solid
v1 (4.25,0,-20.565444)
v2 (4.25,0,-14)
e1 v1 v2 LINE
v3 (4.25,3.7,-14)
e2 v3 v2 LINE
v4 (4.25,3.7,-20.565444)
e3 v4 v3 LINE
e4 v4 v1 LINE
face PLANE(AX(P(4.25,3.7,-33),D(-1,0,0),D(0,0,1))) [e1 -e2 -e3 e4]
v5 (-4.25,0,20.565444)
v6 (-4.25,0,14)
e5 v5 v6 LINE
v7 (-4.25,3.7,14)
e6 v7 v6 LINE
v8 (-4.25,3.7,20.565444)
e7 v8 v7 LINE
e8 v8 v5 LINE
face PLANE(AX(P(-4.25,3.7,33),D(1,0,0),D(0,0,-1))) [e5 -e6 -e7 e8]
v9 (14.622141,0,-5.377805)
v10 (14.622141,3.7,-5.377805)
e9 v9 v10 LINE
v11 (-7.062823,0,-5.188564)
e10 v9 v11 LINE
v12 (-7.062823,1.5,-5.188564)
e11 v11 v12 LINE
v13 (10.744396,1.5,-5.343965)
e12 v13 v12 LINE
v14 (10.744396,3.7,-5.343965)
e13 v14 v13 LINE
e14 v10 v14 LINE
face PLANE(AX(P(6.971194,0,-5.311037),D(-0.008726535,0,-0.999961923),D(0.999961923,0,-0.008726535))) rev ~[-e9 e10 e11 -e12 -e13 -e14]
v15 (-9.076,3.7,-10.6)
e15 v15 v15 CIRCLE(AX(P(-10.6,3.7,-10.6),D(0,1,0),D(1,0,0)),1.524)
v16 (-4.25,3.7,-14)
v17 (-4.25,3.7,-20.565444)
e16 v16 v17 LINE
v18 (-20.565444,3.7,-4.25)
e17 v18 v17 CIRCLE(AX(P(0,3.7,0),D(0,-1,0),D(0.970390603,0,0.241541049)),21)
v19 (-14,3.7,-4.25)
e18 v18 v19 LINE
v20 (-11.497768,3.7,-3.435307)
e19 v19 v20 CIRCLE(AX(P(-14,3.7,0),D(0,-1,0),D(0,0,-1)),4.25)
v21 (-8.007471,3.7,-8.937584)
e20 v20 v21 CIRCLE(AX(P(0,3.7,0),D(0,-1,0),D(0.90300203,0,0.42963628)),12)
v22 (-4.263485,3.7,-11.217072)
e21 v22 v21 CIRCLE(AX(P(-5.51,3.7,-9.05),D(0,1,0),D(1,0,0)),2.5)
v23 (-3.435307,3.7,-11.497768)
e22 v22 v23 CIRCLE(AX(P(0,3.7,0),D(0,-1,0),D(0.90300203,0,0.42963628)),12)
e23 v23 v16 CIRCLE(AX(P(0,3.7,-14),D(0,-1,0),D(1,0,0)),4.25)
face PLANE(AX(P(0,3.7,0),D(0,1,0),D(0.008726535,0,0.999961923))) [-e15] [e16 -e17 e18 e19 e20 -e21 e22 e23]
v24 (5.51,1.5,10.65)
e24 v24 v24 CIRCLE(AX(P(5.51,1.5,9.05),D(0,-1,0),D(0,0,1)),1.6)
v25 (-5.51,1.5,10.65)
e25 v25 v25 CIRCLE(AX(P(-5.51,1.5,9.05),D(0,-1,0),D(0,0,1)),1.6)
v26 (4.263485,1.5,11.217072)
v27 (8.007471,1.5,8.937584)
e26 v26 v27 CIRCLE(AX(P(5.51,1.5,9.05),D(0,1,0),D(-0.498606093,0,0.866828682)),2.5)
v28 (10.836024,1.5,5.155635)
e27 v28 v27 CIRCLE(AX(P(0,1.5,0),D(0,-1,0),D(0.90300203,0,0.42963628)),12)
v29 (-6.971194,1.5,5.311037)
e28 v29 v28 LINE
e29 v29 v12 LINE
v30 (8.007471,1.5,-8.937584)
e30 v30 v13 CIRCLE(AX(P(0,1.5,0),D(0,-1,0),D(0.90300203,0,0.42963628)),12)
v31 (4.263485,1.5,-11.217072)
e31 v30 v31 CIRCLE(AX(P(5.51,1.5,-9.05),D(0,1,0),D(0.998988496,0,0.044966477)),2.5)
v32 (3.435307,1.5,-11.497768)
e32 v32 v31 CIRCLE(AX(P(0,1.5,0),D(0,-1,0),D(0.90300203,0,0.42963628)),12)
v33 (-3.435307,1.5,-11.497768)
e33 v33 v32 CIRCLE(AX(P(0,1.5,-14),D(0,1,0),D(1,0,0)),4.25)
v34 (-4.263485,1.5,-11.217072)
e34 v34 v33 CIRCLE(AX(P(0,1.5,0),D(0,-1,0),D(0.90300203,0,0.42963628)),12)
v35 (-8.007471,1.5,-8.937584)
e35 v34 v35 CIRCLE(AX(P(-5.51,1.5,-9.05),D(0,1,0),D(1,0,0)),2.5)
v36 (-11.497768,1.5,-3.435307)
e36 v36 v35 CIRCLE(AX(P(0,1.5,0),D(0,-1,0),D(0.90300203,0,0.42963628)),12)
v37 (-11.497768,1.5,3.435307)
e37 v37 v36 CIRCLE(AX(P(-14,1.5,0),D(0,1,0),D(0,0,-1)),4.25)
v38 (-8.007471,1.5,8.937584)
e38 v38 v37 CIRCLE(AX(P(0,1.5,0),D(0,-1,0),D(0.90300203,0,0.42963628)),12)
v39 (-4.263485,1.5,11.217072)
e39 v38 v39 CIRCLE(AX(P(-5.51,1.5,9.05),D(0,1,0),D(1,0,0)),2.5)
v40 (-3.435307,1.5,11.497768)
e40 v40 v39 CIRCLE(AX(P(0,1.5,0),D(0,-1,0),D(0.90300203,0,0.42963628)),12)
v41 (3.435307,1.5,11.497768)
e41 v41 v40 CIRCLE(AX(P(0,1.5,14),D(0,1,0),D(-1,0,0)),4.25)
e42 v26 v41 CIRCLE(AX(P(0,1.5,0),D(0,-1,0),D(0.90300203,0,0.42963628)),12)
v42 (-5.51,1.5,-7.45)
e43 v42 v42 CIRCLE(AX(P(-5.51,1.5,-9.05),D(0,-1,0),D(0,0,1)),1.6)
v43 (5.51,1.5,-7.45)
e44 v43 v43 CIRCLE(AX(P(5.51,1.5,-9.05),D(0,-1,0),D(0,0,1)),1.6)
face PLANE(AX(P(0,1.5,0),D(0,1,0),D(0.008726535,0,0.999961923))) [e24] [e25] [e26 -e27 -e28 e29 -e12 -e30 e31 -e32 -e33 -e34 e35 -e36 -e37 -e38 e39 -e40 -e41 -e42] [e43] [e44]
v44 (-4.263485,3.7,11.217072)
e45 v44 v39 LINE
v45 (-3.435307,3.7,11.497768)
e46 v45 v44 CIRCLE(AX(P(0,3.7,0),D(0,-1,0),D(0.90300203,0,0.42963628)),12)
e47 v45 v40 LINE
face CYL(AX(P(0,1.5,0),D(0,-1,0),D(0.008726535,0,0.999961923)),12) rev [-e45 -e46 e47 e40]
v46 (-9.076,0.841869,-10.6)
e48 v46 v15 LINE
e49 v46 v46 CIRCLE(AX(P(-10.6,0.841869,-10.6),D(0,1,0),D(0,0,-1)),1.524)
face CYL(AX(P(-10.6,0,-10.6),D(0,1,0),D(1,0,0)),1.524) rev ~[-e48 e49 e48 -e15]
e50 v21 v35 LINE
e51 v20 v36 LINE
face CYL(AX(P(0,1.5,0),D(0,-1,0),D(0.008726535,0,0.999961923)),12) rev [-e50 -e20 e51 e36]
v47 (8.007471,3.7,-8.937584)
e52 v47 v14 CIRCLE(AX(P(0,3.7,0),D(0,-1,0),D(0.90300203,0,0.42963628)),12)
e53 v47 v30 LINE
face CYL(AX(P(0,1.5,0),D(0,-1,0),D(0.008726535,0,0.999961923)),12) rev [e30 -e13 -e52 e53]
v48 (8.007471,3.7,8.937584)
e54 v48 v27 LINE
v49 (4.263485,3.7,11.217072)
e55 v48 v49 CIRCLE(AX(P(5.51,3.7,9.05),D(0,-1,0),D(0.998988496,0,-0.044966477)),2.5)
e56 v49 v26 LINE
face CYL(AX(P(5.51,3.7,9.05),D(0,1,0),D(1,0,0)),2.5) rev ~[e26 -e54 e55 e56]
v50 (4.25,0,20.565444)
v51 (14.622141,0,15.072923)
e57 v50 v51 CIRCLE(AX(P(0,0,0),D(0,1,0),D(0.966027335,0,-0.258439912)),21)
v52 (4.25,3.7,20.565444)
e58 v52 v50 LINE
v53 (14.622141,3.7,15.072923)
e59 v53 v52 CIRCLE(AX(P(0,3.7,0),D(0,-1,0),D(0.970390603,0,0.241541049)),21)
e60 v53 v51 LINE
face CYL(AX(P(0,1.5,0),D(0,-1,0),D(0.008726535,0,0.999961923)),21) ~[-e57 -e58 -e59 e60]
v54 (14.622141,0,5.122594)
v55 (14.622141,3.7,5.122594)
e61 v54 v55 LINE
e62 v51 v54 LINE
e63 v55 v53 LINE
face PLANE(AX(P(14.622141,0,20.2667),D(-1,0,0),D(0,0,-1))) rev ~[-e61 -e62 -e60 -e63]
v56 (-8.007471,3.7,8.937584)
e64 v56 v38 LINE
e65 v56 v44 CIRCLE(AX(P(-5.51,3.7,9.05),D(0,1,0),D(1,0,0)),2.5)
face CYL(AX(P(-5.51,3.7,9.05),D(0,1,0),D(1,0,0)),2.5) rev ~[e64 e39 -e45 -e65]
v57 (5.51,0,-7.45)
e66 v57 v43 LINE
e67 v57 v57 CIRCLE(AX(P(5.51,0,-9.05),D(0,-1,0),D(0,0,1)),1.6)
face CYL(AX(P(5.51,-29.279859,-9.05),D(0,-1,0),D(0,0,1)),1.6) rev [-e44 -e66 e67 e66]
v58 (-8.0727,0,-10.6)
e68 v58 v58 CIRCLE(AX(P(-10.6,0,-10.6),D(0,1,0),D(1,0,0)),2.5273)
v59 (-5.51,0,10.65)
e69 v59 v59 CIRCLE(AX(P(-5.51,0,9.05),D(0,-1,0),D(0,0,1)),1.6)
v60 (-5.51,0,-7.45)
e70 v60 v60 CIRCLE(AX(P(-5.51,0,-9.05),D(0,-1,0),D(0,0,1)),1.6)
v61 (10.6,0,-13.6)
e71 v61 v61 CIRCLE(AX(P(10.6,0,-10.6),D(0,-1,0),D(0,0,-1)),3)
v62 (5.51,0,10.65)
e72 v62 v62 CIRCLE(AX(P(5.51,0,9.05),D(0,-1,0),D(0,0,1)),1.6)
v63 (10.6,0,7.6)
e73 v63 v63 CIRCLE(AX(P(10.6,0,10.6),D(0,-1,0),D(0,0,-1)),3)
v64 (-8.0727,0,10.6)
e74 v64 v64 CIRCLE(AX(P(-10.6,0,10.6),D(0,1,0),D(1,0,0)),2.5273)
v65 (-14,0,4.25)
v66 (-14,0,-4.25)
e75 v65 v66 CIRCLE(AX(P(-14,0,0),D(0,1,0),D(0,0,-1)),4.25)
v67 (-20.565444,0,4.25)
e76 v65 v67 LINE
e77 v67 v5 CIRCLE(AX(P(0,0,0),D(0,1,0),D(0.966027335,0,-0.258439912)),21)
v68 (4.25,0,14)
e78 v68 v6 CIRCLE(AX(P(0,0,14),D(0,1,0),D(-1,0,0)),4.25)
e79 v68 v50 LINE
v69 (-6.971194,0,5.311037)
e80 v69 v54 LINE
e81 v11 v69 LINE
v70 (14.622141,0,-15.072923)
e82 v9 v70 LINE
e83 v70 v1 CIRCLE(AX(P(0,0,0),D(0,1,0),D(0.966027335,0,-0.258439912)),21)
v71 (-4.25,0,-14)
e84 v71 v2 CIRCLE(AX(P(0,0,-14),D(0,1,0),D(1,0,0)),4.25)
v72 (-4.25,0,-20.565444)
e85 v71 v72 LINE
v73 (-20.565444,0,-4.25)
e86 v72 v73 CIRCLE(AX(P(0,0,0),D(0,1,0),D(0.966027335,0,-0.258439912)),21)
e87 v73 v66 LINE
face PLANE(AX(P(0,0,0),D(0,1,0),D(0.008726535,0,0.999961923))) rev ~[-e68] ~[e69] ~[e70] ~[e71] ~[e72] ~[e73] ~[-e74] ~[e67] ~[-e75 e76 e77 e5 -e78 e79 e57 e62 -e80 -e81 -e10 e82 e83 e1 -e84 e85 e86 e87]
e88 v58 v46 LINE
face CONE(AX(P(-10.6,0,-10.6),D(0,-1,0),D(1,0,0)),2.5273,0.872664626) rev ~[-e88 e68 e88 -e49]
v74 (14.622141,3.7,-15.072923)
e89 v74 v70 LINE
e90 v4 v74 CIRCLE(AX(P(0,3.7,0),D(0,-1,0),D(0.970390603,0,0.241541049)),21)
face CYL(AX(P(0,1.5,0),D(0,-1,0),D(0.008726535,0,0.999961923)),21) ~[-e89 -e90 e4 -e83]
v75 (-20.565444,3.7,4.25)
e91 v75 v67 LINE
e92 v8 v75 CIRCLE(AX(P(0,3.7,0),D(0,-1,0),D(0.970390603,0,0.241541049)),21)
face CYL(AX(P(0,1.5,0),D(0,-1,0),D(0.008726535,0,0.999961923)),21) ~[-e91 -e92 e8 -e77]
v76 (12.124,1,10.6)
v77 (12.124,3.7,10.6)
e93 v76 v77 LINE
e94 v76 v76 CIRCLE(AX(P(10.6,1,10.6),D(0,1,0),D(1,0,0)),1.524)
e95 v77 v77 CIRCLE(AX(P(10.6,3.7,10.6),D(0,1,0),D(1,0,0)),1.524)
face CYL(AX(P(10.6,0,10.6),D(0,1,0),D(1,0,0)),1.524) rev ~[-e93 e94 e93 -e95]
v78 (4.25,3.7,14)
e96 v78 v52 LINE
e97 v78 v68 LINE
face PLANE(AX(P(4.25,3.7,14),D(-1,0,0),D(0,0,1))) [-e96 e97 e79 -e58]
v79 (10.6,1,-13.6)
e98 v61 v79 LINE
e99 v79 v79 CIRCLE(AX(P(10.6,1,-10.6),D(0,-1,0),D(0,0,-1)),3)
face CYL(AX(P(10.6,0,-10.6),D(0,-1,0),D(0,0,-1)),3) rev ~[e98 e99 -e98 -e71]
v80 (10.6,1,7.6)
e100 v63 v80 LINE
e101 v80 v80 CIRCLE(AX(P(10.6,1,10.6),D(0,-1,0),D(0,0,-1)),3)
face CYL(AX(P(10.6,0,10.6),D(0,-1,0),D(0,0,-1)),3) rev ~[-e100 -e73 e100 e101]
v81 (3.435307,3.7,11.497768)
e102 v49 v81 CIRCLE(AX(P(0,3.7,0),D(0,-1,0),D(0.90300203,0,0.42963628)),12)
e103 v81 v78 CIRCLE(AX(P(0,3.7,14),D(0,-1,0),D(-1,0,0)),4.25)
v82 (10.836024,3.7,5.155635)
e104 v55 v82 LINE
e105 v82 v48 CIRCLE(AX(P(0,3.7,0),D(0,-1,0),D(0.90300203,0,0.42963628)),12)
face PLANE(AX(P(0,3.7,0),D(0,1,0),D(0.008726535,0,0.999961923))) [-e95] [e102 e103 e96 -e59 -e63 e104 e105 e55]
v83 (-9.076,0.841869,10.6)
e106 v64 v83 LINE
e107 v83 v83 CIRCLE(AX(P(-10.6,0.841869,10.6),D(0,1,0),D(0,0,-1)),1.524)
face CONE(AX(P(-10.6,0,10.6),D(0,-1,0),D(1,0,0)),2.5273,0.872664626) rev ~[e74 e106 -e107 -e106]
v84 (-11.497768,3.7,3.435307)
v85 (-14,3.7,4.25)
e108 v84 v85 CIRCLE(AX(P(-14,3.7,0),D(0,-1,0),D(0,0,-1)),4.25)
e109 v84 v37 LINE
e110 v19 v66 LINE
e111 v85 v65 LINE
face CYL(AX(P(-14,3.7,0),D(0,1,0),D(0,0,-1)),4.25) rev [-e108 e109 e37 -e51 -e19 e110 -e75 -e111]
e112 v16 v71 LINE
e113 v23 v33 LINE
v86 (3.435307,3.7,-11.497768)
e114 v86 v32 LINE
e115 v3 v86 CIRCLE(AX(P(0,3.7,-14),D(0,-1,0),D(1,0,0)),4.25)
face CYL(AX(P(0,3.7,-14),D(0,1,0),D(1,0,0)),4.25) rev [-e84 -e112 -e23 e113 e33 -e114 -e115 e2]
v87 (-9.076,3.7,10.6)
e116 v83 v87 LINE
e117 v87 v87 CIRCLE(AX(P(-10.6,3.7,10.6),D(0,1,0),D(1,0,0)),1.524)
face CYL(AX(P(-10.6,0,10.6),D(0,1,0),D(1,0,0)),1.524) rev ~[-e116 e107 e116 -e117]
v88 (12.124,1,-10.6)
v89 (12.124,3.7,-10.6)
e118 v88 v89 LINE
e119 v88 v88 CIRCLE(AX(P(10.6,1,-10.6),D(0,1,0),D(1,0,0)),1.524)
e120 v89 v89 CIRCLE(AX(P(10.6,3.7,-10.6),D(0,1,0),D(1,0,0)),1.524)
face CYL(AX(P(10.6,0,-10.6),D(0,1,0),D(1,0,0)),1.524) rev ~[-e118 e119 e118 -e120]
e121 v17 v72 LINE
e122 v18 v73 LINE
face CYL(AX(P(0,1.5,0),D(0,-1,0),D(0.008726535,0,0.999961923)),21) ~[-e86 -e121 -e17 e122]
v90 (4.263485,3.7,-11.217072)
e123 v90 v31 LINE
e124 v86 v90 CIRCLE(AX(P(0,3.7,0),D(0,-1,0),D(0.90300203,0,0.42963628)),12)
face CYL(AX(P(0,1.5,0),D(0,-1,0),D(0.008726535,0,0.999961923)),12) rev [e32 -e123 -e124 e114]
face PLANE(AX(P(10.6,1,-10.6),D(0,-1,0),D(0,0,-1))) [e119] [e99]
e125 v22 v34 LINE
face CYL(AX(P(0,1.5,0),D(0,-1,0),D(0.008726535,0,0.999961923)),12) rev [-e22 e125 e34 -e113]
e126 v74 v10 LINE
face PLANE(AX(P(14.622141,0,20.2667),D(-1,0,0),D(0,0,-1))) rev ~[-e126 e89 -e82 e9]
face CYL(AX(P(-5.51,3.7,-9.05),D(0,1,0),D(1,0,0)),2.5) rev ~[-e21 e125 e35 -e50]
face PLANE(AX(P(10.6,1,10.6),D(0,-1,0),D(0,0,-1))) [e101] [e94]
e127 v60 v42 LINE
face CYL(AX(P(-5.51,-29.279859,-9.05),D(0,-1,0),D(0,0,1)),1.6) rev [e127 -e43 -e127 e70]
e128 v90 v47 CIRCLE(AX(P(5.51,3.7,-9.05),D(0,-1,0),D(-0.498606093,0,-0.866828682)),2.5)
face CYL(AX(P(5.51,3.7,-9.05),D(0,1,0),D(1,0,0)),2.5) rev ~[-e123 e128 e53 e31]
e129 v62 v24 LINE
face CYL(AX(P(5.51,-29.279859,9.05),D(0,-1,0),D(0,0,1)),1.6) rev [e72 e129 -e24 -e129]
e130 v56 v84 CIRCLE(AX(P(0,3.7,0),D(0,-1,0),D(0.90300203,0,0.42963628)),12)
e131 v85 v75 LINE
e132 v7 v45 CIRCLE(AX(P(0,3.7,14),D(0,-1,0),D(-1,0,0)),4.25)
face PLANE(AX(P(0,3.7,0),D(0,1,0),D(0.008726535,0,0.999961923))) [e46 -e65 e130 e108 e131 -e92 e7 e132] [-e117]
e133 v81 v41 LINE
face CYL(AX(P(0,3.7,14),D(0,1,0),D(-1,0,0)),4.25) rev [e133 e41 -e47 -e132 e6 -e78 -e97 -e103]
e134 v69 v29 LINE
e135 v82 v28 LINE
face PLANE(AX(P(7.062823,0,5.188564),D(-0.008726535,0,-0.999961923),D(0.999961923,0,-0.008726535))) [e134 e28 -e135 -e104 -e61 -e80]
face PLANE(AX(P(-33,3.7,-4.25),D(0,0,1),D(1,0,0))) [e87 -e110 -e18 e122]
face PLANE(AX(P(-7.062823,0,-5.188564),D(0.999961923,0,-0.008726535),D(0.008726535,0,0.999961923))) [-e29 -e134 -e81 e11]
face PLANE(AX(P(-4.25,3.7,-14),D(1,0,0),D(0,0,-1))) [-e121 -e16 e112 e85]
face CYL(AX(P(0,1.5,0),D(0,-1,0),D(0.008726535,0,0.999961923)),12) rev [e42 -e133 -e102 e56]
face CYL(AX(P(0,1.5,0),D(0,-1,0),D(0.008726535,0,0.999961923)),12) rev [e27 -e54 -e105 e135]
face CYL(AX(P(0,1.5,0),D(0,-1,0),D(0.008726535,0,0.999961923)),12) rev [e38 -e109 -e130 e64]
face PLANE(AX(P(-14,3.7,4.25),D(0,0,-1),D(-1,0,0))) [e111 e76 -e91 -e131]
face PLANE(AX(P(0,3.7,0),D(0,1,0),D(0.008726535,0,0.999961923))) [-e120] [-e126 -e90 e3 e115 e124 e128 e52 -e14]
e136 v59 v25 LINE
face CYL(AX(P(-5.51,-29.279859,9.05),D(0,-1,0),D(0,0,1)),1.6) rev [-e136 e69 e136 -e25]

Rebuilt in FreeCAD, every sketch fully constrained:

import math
import FreeCAD as App
import Part
import Sketcher
Q = App.Units.Quantity


def add_polygon(sketch, points):
    """Adds a closed chain of lines whose ends are joined by coincident constraints."""
    first, n = sketch.GeometryCount, len(points)
    for a, b in zip(points, points[1:] + points[:1]):
        sketch.addGeometry(Part.LineSegment(App.Vector(*a, 0), App.Vector(*b, 0)), False)
    for i in range(n):
        sketch.addConstraint(Sketcher.Constraint("Coincident", first + i, 2, first + (i + 1) % n, 1))

doc = App.newDocument("Part")
params = doc.addObject("Spreadsheet::Sheet", "Params")
for row, (alias, value) in enumerate([
    ("sketch1_diameter", "42 mm"),
    ("pad1_length", "1.5 mm"),
    ("sketch2_diameter", "42 mm"),
    ("sketch2_diameter2", "24 mm"),
    ("pad2_length", "2.2 mm"),
    ("sketch3_diameter", "2.5 mm"),
    ("sketch4_height", "10.5 mm"),
    ("sketch5_height", "10.5 mm"),
    ("sketch6_diameter", "1 mm"),
    ("sketch6_diameter2", "1.1 mm"),
    ("sketch7_diameter", "2.7 mm"),
    ("pocket5_length", "1.5 mm"),
    ("sketch8_diameter", "5 mm"),
    ("pocket6_length", "2.2 mm"),
    ("sketch9_diameter", "4 mm"),
    ("sketch10_diameter", "3.2 mm"),
    ("sketch12_diameter", "6 mm"),
    ("pocket10_length", "1 mm"),
    ("hole_diameter", "3.048 mm"),
    ("hole_csink_diameter", "5.0546 mm"),
    ("sketch14_width", "19 mm"),
    ("sketch14_radius", "4.25 mm"),
], start=1):
    params.set(f"A{row}", alias)
    params.set(f"B{row}", "=" + value)
    params.setAlias(f"B{row}", alias)

body = doc.addObject("PartDesign::Body", "Body")

sketch1 = doc.addObject("Sketcher::SketchObject", "Sketch")
body.addObject(sketch1)
sketch1.AttachmentSupport = (doc.XZ_Plane, [""])
sketch1.MapMode = "FlatFace"
sketch1.addGeometry(Part.Circle(App.Vector(0, 0, 0), App.Vector(0, 0, 1), 21), False)
sketch1.addConstraint([
    Sketcher.Constraint("Coincident", 0, 3, -1, 1),
    Sketcher.Constraint("Diameter", 0, Q("42 mm")),
])
sketch1.setExpression("Constraints[1]", "Params.sketch1_diameter")
pad1 = doc.addObject("PartDesign::Pad", "Pad")
body.addObject(pad1)
pad1.Profile = sketch1
pad1.setExpression("Length", "Params.pad1_length")
pad1.Reversed = True

sketch2 = doc.addObject("Sketcher::SketchObject", "Sketch001")
body.addObject(sketch2)
sketch2.AttachmentSupport = (doc.XZ_Plane, [""])
sketch2.MapMode = "FlatFace"
sketch2.AttachmentOffset = App.Placement(App.Vector(0, 0, -1.5), App.Rotation())
sketch2.addGeometry([
    Part.Circle(App.Vector(0, 0, 0), App.Vector(0, 0, 1), 21),
    Part.Circle(App.Vector(0, 0, 0), App.Vector(0, 0, 1), 12),
], False)
sketch2.addConstraint([
    Sketcher.Constraint("Coincident", 0, 3, -1, 1),
    Sketcher.Constraint("Coincident", 1, 3, -1, 1),
    Sketcher.Constraint("Diameter", 0, Q("42 mm")),
    Sketcher.Constraint("Diameter", 1, Q("24 mm")),
])
sketch2.setExpression("Constraints[2]", "Params.sketch2_diameter")
sketch2.setExpression("Constraints[3]", "Params.sketch2_diameter2")
pad2 = doc.addObject("PartDesign::Pad", "Pad001")
body.addObject(pad2)
pad2.Profile = sketch2
pad2.setExpression("Length", "Params.pad2_length")
pad2.Reversed = True

sketch3 = doc.addObject("Sketcher::SketchObject", "Sketch002")
body.addObject(sketch3)
sketch3.AttachmentSupport = (doc.XZ_Plane, [""])
sketch3.MapMode = "FlatFace"
sketch3.addGeometry([
    Part.Circle(App.Vector(-5.5, 9.1, 0), App.Vector(0, 0, 1), 1.2),
    Part.Circle(App.Vector(5.5, 9.1, 0), App.Vector(0, 0, 1), 1.2),
    Part.Circle(App.Vector(-5.5, -9.1, 0), App.Vector(0, 0, 1), 1.2),
    Part.Circle(App.Vector(5.5, -9.1, 0), App.Vector(0, 0, 1), 1.2),
], False)
sketch3.addConstraint([
    Sketcher.Constraint("Equal", 0, 1),
    Sketcher.Constraint("Equal", 1, 2),
    Sketcher.Constraint("Equal", 2, 3),
    Sketcher.Constraint("Symmetric", 1, 3, 2, 3, -1, 1),
    Sketcher.Constraint("Symmetric", 0, 3, 3, 3, -1, 1),
    Sketcher.Constraint("Symmetric", 0, 3, 1, 3, -2),
    Sketcher.Constraint("Diameter", 0, Q("2.5 mm")),
    Sketcher.Constraint("DistanceY", 2, 3, 0, 3, Q("18.1 mm")),
    Sketcher.Constraint("DistanceX", 0, 3, -1, 1, Q("5.51 mm")),
])
sketch3.setExpression("Constraints[6]", "Params.sketch3_diameter")
pocket1 = doc.addObject("PartDesign::Pocket", "Pocket")
body.addObject(pocket1)
pocket1.Profile = sketch3
pocket1.Type = "ThroughAll"

sketch4 = doc.addObject("Sketcher::SketchObject", "Sketch003")
body.addObject(sketch4)
sketch4.AttachmentSupport = (doc.XZ_Plane, [""])
sketch4.MapMode = "FlatFace"
add_polygon(sketch4, [(-7, 5), (-7, -5), (7, -5), (7, 5)])
sketch4.addConstraint([
    Sketcher.Constraint("Vertical", 0),
    Sketcher.Constraint("Horizontal", 1),
    Sketcher.Constraint("Vertical", 2),
    Sketcher.Constraint("Horizontal", 3),
    Sketcher.Constraint("Symmetric", 0, 2, 2, 2, -1, 1),
    Sketcher.Constraint("DistanceY", 0, 2, 0, 1, Q("10.5 mm")),
    Sketcher.Constraint("DistanceX", 1, 1, 1, 2, Q("14.034551 mm")),
])
sketch4.setExpression("Constraints[9]", "Params.sketch4_height")
pocket2 = doc.addObject("PartDesign::Pocket", "Pocket001")
body.addObject(pocket2)
pocket2.Profile = sketch4
pocket2.Type = "ThroughAll"

sketch5 = doc.addObject("Sketcher::SketchObject", "Sketch004")
body.addObject(sketch5)
sketch5.AttachmentSupport = (doc.XZ_Plane, [""])
sketch5.MapMode = "FlatFace"
add_polygon(sketch5, [(7, 5), (7, -5), (24, -5), (24, 5)])
sketch5.addConstraint([
    Sketcher.Constraint("Vertical", 0),
    Sketcher.Constraint("Horizontal", 1),
    Sketcher.Constraint("Vertical", 2),
    Sketcher.Constraint("Horizontal", 3),
    Sketcher.Constraint("DistanceY", 0, 2, 0, 1, Q("10.5 mm")),
    Sketcher.Constraint("DistanceY", 0, 2, -1, 1, Q("5.25 mm")),
    Sketcher.Constraint("DistanceX", 1, 1, 1, 2, Q("17.422202 mm")),
    Sketcher.Constraint("DistanceX", -1, 1, 0, 2, Q("7.017276 mm")),
])
sketch5.setExpression("Constraints[8]", "Params.sketch5_height")
pocket3 = doc.addObject("PartDesign::Pocket", "Pocket002")
body.addObject(pocket3)
pocket3.Profile = sketch5
pocket3.Type = "ThroughAll"
body2 = doc.addObject("PartDesign::Body", "Body001")
doc.recompute()

body.Placement = App.Placement(App.Vector(0, 0, 0), App.Rotation(App.Vector(0, 1, 0), 45))
boolean = doc.addObject("PartDesign::Boolean", "Boolean")
body2.addObject(boolean)
boolean.Type = "Fuse"
boolean.addObjects([body])
body3 = doc.addObject("PartDesign::Body", "Body002")
doc.recompute()

body2.Placement = App.Placement(App.Vector(0, 0, 0), App.Rotation(App.Vector(0, 1, 0), 5))
boolean2 = doc.addObject("PartDesign::Boolean", "Boolean001")
body3.addObject(boolean2)
boolean2.Type = "Fuse"
boolean2.addObjects([body2])

sketch6 = doc.addObject("Sketcher::SketchObject", "Sketch005")
body3.addObject(sketch6)
sketch6.AttachmentSupport = (doc.getObject("XZ_Plane002"), [""])
sketch6.MapMode = "FlatFace"
sketch6.addGeometry([
    Part.Circle(App.Vector(-10.9, 10.9, 0), App.Vector(0, 0, 1), 0.6),
    Part.Circle(App.Vector(10.9, 10.9, 0), App.Vector(0, 0, 1), 0.5),
    Part.Circle(App.Vector(-10.9, -10.9, 0), App.Vector(0, 0, 1), 0.5),
], False)
sketch6.addConstraint([
    Sketcher.Constraint("Equal", 1, 2),
    Sketcher.Constraint("Symmetric", 1, 3, 2, 3, -1, 1),
    Sketcher.Constraint("Symmetric", 0, 3, 1, 3, -2),
    Sketcher.Constraint("Diameter", 1, Q("1 mm")),
    Sketcher.Constraint("Diameter", 0, Q("1.1 mm")),
    Sketcher.Constraint("DistanceX", 0, 3, -1, 1, Q("10.9 mm")),
    Sketcher.Constraint("DistanceY", -1, 1, 0, 3, Q("10.9 mm")),
])
sketch6.setExpression("Constraints[3]", "Params.sketch6_diameter")
sketch6.setExpression("Constraints[4]", "Params.sketch6_diameter2")
pocket4 = doc.addObject("PartDesign::Pocket", "Pocket003")
body3.addObject(pocket4)
pocket4.Profile = sketch6
pocket4.Type = "ThroughAll"
body4 = doc.addObject("PartDesign::Body", "Body003")
doc.recompute()

body3.Placement = App.Placement(App.Vector(0, 0, 0), App.Rotation(App.Vector(0, -1, 0), 49.5))
boolean3 = doc.addObject("PartDesign::Boolean", "Boolean002")
body4.addObject(boolean3)
boolean3.Type = "Fuse"
boolean3.addObjects([body3])

sketch7 = doc.addObject("Sketcher::SketchObject", "Sketch006")
body4.addObject(sketch7)
sketch7.AttachmentSupport = (doc.getObject("XZ_Plane003"), [""])
sketch7.MapMode = "FlatFace"
sketch7.addGeometry([
    Part.Circle(App.Vector(-5.5, 9.1, 0), App.Vector(0, 0, 1), 1.4),
    Part.Circle(App.Vector(5.5, 9.1, 0), App.Vector(0, 0, 1), 1.4),
    Part.Circle(App.Vector(-5.5, -9.1, 0), App.Vector(0, 0, 1), 1.4),
    Part.Circle(App.Vector(5.5, -9.1, 0), App.Vector(0, 0, 1), 1.4),
], False)
sketch7.addConstraint([
    Sketcher.Constraint("Equal", 0, 1),
    Sketcher.Constraint("Equal", 1, 2),
    Sketcher.Constraint("Equal", 2, 3),
    Sketcher.Constraint("Symmetric", 1, 3, 2, 3, -1, 1),
    Sketcher.Constraint("Symmetric", 0, 3, 3, 3, -1, 1),
    Sketcher.Constraint("Symmetric", 0, 3, 1, 3, -2),
    Sketcher.Constraint("Diameter", 0, Q("2.7 mm")),
    Sketcher.Constraint("DistanceY", 2, 3, 0, 3, Q("18.1 mm")),
    Sketcher.Constraint("DistanceX", 0, 3, -1, 1, Q("5.51 mm")),
])
sketch7.setExpression("Constraints[6]", "Params.sketch7_diameter")
pocket5 = doc.addObject("PartDesign::Pocket", "Pocket004")
body4.addObject(pocket5)
pocket5.Profile = sketch7
pocket5.setExpression("Length", "Params.pocket5_length")

sketch8 = doc.addObject("Sketcher::SketchObject", "Sketch007")
body4.addObject(sketch8)
sketch8.AttachmentSupport = (doc.getObject("XZ_Plane003"), [""])
sketch8.MapMode = "FlatFace"
sketch8.AttachmentOffset = App.Placement(App.Vector(0, 0, -3.7), App.Rotation())
sketch8.addGeometry([
    Part.Circle(App.Vector(-5.5, -9.1, 0), App.Vector(0, 0, 1), 2.5),
    Part.Circle(App.Vector(5.5, -9.1, 0), App.Vector(0, 0, 1), 2.5),
    Part.Circle(App.Vector(-5.5, 9.1, 0), App.Vector(0, 0, 1), 2.5),
    Part.Circle(App.Vector(5.5, 9.1, 0), App.Vector(0, 0, 1), 2.5),
], False)
sketch8.addConstraint([
    Sketcher.Constraint("Equal", 0, 1),
    Sketcher.Constraint("Equal", 1, 2),
    Sketcher.Constraint("Equal", 2, 3),
    Sketcher.Constraint("Symmetric", 1, 3, 2, 3, -1, 1),
    Sketcher.Constraint("Symmetric", 0, 3, 3, 3, -1, 1),
    Sketcher.Constraint("Symmetric", 0, 3, 1, 3, -2),
    Sketcher.Constraint("Diameter", 0, Q("5 mm")),
    Sketcher.Constraint("DistanceY", 0, 3, 2, 3, Q("18.1 mm")),
    Sketcher.Constraint("DistanceX", 0, 3, -1, 1, Q("5.51 mm")),
])
sketch8.setExpression("Constraints[6]", "Params.sketch8_diameter")
pocket6 = doc.addObject("PartDesign::Pocket", "Pocket005")
body4.addObject(pocket6)
pocket6.Profile = sketch8
pocket6.setExpression("Length", "Params.pocket6_length")
pocket6.Reversed = True

sketch9 = doc.addObject("Sketcher::SketchObject", "Sketch008")
body4.addObject(sketch9)
sketch9.AttachmentSupport = (doc.getObject("XZ_Plane003"), [""])
sketch9.MapMode = "FlatFace"
sketch9.AttachmentOffset = App.Placement(App.Vector(0, 0, -3.7), App.Rotation())
sketch9.addGeometry([
    Part.Circle(App.Vector(0, -16, 0), App.Vector(0, 0, 1), 2),
    Part.Circle(App.Vector(-16, 0, 0), App.Vector(0, 0, 1), 2),
    Part.Circle(App.Vector(0, 16, 0), App.Vector(0, 0, 1), 2),
], False)
sketch9.addConstraint([
    Sketcher.Constraint("Equal", 0, 1),
    Sketcher.Constraint("Equal", 1, 2),
    Sketcher.Constraint("Symmetric", 0, 3, 2, 3, -1, 1),
    Sketcher.Constraint("PointOnObject", 0, 3, -2),
    Sketcher.Constraint("PointOnObject", 1, 3, -1),
    Sketcher.Constraint("Diameter", 0, Q("4 mm")),
    Sketcher.Constraint("DistanceY", 0, 3, -1, 1, Q("16 mm")),
    Sketcher.Constraint("DistanceX", 1, 3, -1, 1, Q("16 mm")),
])
sketch9.setExpression("Constraints[5]", "Params.sketch9_diameter")
pocket7 = doc.addObject("PartDesign::Pocket", "Pocket006")
body4.addObject(pocket7)
pocket7.Profile = sketch9
pocket7.Type = "ThroughAll"
pocket7.Reversed = True

sketch10 = doc.addObject("Sketcher::SketchObject", "Sketch009")
body4.addObject(sketch10)
sketch10.AttachmentSupport = (doc.getObject("XZ_Plane003"), [""])
sketch10.MapMode = "FlatFace"
sketch10.AttachmentOffset = App.Placement(App.Vector(0, 0, -1.5), App.Rotation())
sketch10.addGeometry([
    Part.Circle(App.Vector(-5.5, -9.1, 0), App.Vector(0, 0, 1), 1.6),
    Part.Circle(App.Vector(5.5, -9.1, 0), App.Vector(0, 0, 1), 1.6),
    Part.Circle(App.Vector(-5.5, 9.1, 0), App.Vector(0, 0, 1), 1.6),
    Part.Circle(App.Vector(5.5, 9.1, 0), App.Vector(0, 0, 1), 1.6),
], False)
sketch10.addConstraint([
    Sketcher.Constraint("Equal", 0, 1),
    Sketcher.Constraint("Equal", 1, 2),
    Sketcher.Constraint("Equal", 2, 3),
    Sketcher.Constraint("Symmetric", 1, 3, 2, 3, -1, 1),
    Sketcher.Constraint("Symmetric", 0, 3, 3, 3, -1, 1),
    Sketcher.Constraint("Symmetric", 0, 3, 1, 3, -2),
    Sketcher.Constraint("Diameter", 0, Q("3.2 mm")),
    Sketcher.Constraint("DistanceY", 0, 3, 2, 3, Q("18.1 mm")),
    Sketcher.Constraint("DistanceX", 0, 3, -1, 1, Q("5.51 mm")),
])
sketch10.setExpression("Constraints[6]", "Params.sketch10_diameter")
pocket8 = doc.addObject("PartDesign::Pocket", "Pocket007")
body4.addObject(pocket8)
pocket8.Profile = sketch10
pocket8.Type = "ThroughAll"
pocket8.Midplane = True

sketch11 = doc.addObject("Sketcher::SketchObject", "Sketch010")
body4.addObject(sketch11)
sketch11.AttachmentSupport = (doc.getObject("XZ_Plane003"), [""])
sketch11.MapMode = "FlatFace"
add_polygon(sketch11, [(25, 20), (15, 20), (15, -20), (25, -20)])
sketch11.addConstraint([
    Sketcher.Constraint("Horizontal", 0),
    Sketcher.Constraint("Vertical", 1),
    Sketcher.Constraint("Horizontal", 2),
    Sketcher.Constraint("Vertical", 3),
    Sketcher.Constraint("DistanceY", -1, 1, 0, 2, Q("20.2667 mm")),
    Sketcher.Constraint("DistanceX", 0, 2, 0, 1, Q("10.105425 mm")),
    Sketcher.Constraint("DistanceY", 1, 2, 1, 1, Q("40.532774 mm")),
    Sketcher.Constraint("DistanceX", -1, 1, 0, 2, Q("14.622141 mm")),
])
pocket9 = doc.addObject("PartDesign::Pocket", "Pocket008")
body4.addObject(pocket9)
pocket9.Profile = sketch11
pocket9.Type = "ThroughAll"

sketch12 = doc.addObject("Sketcher::SketchObject", "Sketch011")
body4.addObject(sketch12)
sketch12.AttachmentSupport = (doc.getObject("XZ_Plane003"), [""])
sketch12.MapMode = "FlatFace"
sketch12.addGeometry([
    Part.Circle(App.Vector(10.6, 10.6, 0), App.Vector(0, 0, 1), 3),
    Part.Circle(App.Vector(10.6, -10.6, 0), App.Vector(0, 0, 1), 3),
], False)
sketch12.addConstraint([
    Sketcher.Constraint("Equal", 0, 1),
    Sketcher.Constraint("Symmetric", 0, 3, 1, 3, -1),
    Sketcher.Constraint("Diameter", 0, Q("6 mm")),
    Sketcher.Constraint("DistanceX", -1, 1, 0, 3, Q("10.6 mm")),
    Sketcher.Constraint("DistanceY", -1, 1, 0, 3, Q("10.6 mm")),
])
sketch12.setExpression("Constraints[2]", "Params.sketch12_diameter")
pocket10 = doc.addObject("PartDesign::Pocket", "Pocket009")
body4.addObject(pocket10)
pocket10.Profile = sketch12
pocket10.setExpression("Length", "Params.pocket10_length")

sketch13 = doc.addObject("Sketcher::SketchObject", "Sketch012")
body4.addObject(sketch13)
sketch13.AttachmentSupport = (doc.getObject("XZ_Plane003"), [""])
sketch13.MapMode = "FlatFace"
sketch13.addGeometry([
    Part.Circle(App.Vector(-10.6, 10.6, 0), App.Vector(0, 0, 1), 1.5),
    Part.Circle(App.Vector(10.6, 10.6, 0), App.Vector(0, 0, 1), 1.5),
    Part.Circle(App.Vector(-10.6, -10.6, 0), App.Vector(0, 0, 1), 1.5),
    Part.Circle(App.Vector(10.6, -10.6, 0), App.Vector(0, 0, 1), 1.5),
], False)
sketch13.addConstraint([
    Sketcher.Constraint("Equal", 0, 1),
    Sketcher.Constraint("Equal", 1, 2),
    Sketcher.Constraint("Equal", 2, 3),
    Sketcher.Constraint("Symmetric", 1, 3, 2, 3, -1, 1),
    Sketcher.Constraint("Symmetric", 0, 3, 3, 3, -1, 1),
    Sketcher.Constraint("Symmetric", 0, 3, 1, 3, -2),
    Sketcher.Constraint("Diameter", 0, Q("3.048 mm")),
    Sketcher.Constraint("DistanceX", 0, 3, -1, 1, Q("10.6 mm")),
    Sketcher.Constraint("DistanceY", -1, 1, 0, 3, Q("10.6 mm")),
])
doc.recompute()
hole = doc.addObject("PartDesign::Hole", "Hole")
body4.addObject(hole)
hole.Profile = sketch13
hole.ThreadType = "None"
hole.setExpression("Diameter", "Params.hole_diameter")
hole.DepthType = "ThroughAll"
hole.HoleCutType = "Countersink"
hole.setExpression("HoleCutDiameter", "Params.hole_csink_diameter")
hole.HoleCutCountersinkAngle = 100

sketch14 = doc.addObject("Sketcher::SketchObject", "Sketch013")
body4.addObject(sketch14)
sketch14.AttachmentSupport = (doc.getObject("XZ_Plane003"), [""])
sketch14.MapMode = "FlatFace"
sketch14.AttachmentOffset = App.Placement(App.Vector(0, 0, -3.7), App.Rotation())
sketch14.addGeometry([
    Part.LineSegment(App.Vector(-14, -4.2, 0), App.Vector(-33, -4.2, 0)),
    Part.ArcOfCircle(Part.Circle(App.Vector(-33, 0, 0), App.Vector(0, 0, 1), 4.2), math.radians(90), math.radians(270)),
    Part.LineSegment(App.Vector(-33, 4.2, 0), App.Vector(-14, 4.2, 0)),
    Part.ArcOfCircle(Part.Circle(App.Vector(-14, 0, 0), App.Vector(0, 0, 1), 4.2), math.radians(-90), math.radians(90)),
    Part.LineSegment(App.Vector(4.2, -14, 0), App.Vector(4.2, -33, 0)),
    Part.ArcOfCircle(Part.Circle(App.Vector(0, -33, 0), App.Vector(0, 0, 1), 4.2), math.radians(180), math.radians(360)),
    Part.LineSegment(App.Vector(-4.2, -33, 0), App.Vector(-4.2, -14, 0)),
    Part.ArcOfCircle(Part.Circle(App.Vector(0, -14, 0), App.Vector(0, 0, 1), 4.2), math.radians(0), math.radians(180)),
    Part.LineSegment(App.Vector(-4.2, 14, 0), App.Vector(-4.2, 33, 0)),
    Part.ArcOfCircle(Part.Circle(App.Vector(0, 33, 0), App.Vector(0, 0, 1), 4.2), math.radians(0), math.radians(180)),
    Part.LineSegment(App.Vector(4.2, 33, 0), App.Vector(4.2, 14, 0)),
    Part.ArcOfCircle(Part.Circle(App.Vector(0, 14, 0), App.Vector(0, 0, 1), 4.2), math.radians(180), math.radians(360)),
], False)
sketch14.addConstraint([
    Sketcher.Constraint("Tangent", 0, 2, 1, 2),
    Sketcher.Constraint("Tangent", 1, 1, 2, 1),
    Sketcher.Constraint("Tangent", 2, 2, 3, 2),
    Sketcher.Constraint("Tangent", 3, 1, 0, 1),
    Sketcher.Constraint("Tangent", 4, 2, 5, 2),
    Sketcher.Constraint("Tangent", 5, 1, 6, 1),
    Sketcher.Constraint("Tangent", 6, 2, 7, 2),
    Sketcher.Constraint("Tangent", 7, 1, 4, 1),
    Sketcher.Constraint("Tangent", 8, 2, 9, 2),
    Sketcher.Constraint("Tangent", 9, 1, 10, 1),
    Sketcher.Constraint("Tangent", 10, 2, 11, 2),
    Sketcher.Constraint("Tangent", 11, 1, 8, 1),
    Sketcher.Constraint("Horizontal", 0),
    Sketcher.Constraint("Horizontal", 2),
    Sketcher.Constraint("Vertical", 4),
    Sketcher.Constraint("Vertical", 6),
    Sketcher.Constraint("Vertical", 8),
    Sketcher.Constraint("Vertical", 10),
    Sketcher.Constraint("Equal", 3, 5),
    Sketcher.Constraint("Equal", 7, 9),
    Sketcher.Constraint("Symmetric", 5, 3, 9, 3, -1, 1),
    Sketcher.Constraint("Symmetric", 7, 3, 11, 3, -1),
    Sketcher.Constraint("PointOnObject", 1, 3, -1),
    Sketcher.Constraint("Equal", 2, 4),
    Sketcher.Constraint("DistanceX", 0, 2, 0, 1, Q("19 mm")),
    Sketcher.Constraint("Radius", 1, Q("4.25 mm")),
    Sketcher.Constraint("DistanceX", 1, 3, -1, 1, Q("33 mm")),
    Sketcher.Constraint("DistanceY", 5, 3, -1, 1, Q("33 mm")),
])
sketch14.setExpression("Constraints[24]", "Params.sketch14_width")
sketch14.setExpression("Constraints[25]", "Params.sketch14_radius")
pocket11 = doc.addObject("PartDesign::Pocket", "Pocket010")
body4.addObject(pocket11)
pocket11.Profile = sketch14
pocket11.Type = "ThroughAll"
pocket11.Reversed = True

doc.recompute()
